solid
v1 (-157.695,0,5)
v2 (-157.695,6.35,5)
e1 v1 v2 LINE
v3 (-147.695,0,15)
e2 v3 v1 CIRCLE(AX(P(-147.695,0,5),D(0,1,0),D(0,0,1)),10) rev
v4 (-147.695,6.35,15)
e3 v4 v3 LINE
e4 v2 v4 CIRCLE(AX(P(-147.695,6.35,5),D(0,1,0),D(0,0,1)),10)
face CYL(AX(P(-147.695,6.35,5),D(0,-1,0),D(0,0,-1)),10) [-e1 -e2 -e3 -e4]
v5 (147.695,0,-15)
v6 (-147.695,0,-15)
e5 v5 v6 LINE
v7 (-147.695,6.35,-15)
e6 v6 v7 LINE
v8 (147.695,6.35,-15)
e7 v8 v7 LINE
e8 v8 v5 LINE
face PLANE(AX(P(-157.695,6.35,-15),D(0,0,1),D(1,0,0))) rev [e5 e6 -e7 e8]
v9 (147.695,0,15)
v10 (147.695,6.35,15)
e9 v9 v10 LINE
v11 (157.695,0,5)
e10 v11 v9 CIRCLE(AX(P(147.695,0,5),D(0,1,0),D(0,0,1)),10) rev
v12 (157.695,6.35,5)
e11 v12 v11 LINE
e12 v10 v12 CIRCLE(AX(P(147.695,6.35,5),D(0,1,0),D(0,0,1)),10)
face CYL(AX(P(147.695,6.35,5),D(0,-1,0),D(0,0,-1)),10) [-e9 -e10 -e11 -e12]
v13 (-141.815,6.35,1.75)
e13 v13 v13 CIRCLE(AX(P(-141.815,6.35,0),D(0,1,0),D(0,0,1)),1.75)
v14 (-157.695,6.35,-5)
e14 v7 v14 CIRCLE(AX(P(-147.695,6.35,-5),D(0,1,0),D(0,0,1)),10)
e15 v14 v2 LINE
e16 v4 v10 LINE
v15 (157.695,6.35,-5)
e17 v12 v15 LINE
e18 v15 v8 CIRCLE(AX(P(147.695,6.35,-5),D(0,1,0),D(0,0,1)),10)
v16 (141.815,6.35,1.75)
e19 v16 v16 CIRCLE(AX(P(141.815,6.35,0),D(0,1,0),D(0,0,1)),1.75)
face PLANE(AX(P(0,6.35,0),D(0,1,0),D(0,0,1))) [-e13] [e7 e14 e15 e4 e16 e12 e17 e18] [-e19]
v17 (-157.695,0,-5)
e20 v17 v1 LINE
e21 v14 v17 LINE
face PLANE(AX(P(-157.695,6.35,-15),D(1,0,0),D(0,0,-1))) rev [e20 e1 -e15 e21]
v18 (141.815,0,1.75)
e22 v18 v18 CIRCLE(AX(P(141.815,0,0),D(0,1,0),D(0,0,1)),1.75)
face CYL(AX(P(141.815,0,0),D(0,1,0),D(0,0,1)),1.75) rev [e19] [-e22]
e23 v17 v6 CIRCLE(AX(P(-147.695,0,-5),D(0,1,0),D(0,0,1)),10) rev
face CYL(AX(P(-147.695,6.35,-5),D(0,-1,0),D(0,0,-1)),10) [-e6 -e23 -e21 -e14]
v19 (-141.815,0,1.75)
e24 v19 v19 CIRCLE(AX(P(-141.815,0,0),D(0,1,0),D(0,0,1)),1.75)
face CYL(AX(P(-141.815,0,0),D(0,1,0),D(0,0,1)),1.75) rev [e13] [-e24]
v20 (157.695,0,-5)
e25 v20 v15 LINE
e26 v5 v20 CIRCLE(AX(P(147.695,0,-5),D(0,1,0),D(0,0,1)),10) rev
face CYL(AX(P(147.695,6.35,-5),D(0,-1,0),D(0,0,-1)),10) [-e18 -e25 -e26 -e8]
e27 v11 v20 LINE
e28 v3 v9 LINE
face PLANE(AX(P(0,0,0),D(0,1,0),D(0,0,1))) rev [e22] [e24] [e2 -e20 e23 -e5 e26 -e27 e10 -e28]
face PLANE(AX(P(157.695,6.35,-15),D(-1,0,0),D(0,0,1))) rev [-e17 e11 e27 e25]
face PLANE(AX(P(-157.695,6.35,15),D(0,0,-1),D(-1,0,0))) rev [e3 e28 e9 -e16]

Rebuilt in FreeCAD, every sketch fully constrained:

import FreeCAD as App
import Part
import Sketcher
from FreeCAD import Vector


def edges_at(feature, points):
    """Names of the edges that pass closest to the given points."""
    edges = feature.Shape.Edges
    near = lambda p: min(range(len(edges)), key=lambda i: edges[i].distToShape(Part.Vertex(*p))[0])
    return sorted({f"Edge{near(p) + 1}" for p in points})

doc = App.newDocument("Part")
body = doc.addObject("PartDesign::Body", "Body")

# Sketch on XZ plane
sketch1 = doc.addObject("Sketcher::SketchObject", "Sketch")
body.addObject(sketch1)
sketch1.AttachmentSupport = (doc.XZ_Plane, [""])
sketch1.MapMode = "FlatFace"
sketch1.addGeometry(Part.LineSegment(Vector(-158, -15, 0), Vector(-158, 15, 0)), False)
sketch1.addGeometry(Part.LineSegment(Vector(-158, 15, 0), Vector(158, 15, 0)), False)
sketch1.addGeometry(Part.LineSegment(Vector(158, 15, 0), Vector(158, -15, 0)), False)
sketch1.addGeometry(Part.LineSegment(Vector(158, -15, 0), Vector(-158, -15, 0)), False)
sketch1.addConstraint(Sketcher.Constraint("Coincident", 0, 2, 1, 1))
sketch1.addConstraint(Sketcher.Constraint("Coincident", 1, 2, 2, 1))
sketch1.addConstraint(Sketcher.Constraint("Coincident", 2, 2, 3, 1))
sketch1.addConstraint(Sketcher.Constraint("Coincident", 3, 2, 0, 1))
sketch1.addConstraint(Sketcher.Constraint("Vertical", 0))
sketch1.addConstraint(Sketcher.Constraint("Horizontal", 1))
sketch1.addConstraint(Sketcher.Constraint("Vertical", 2))
sketch1.addConstraint(Sketcher.Constraint("Horizontal", 3))
sketch1.addConstraint(Sketcher.Constraint("Symmetric", 0, 2, 2, 2, -1, 1))
sketch1.addConstraint(Sketcher.Constraint("DistanceY", 0, 1, 0, 2, 30.0))
sketch1.addConstraint(Sketcher.Constraint("DistanceX", 1, 1, 1, 2, 315.39))
pad1 = doc.addObject("PartDesign::Pad", "Pad")
body.addObject(pad1)
pad1.Profile = sketch1
pad1.Length = 6.35
pad1.Reversed = True

# Sketch on XZ plane
sketch2 = doc.addObject("Sketcher::SketchObject", "Sketch001")
body.addObject(sketch2)
sketch2.AttachmentSupport = (doc.XZ_Plane, [""])
sketch2.MapMode = "FlatFace"
sketch2.AttachmentOffset = App.Placement(Vector(0, 0, -6.35), App.Rotation())
sketch2.addGeometry(Part.Circle(Vector(-141.8, 0, 0), Vector(0, 0, 1), 1.8), False)
sketch2.addGeometry(Part.Circle(Vector(141.8, 0, 0), Vector(0, 0, 1), 1.8), False)
sketch2.addConstraint(Sketcher.Constraint("Equal", 0, 1))
sketch2.addConstraint(Sketcher.Constraint("Symmetric", 0, 3, 1, 3, -1, 1))
sketch2.addConstraint(Sketcher.Constraint("PointOnObject", 0, 3, -1))
sketch2.addConstraint(Sketcher.Constraint("Diameter", 0, 3.5))
sketch2.addConstraint(Sketcher.Constraint("DistanceX", 0, 3, 1, 3, 283.63))
pocket1 = doc.addObject("PartDesign::Pocket", "Pocket")
body.addObject(pocket1)
pocket1.Profile = sketch2
pocket1.Type = "ThroughAll"
pocket1.Reversed = True
doc.recompute()

fillet = doc.addObject("PartDesign::Fillet", "Fillet")
body.addObject(fillet)
fillet.Base = (pocket1, edges_at(pocket1, [
    (157.695, 3.175, 15),
    (-157.695, 3.175, 15),
    (-157.695, 3.175, -15),
    (157.695, 3.175, -15),
]))
fillet.Radius = 10

doc.recompute()
